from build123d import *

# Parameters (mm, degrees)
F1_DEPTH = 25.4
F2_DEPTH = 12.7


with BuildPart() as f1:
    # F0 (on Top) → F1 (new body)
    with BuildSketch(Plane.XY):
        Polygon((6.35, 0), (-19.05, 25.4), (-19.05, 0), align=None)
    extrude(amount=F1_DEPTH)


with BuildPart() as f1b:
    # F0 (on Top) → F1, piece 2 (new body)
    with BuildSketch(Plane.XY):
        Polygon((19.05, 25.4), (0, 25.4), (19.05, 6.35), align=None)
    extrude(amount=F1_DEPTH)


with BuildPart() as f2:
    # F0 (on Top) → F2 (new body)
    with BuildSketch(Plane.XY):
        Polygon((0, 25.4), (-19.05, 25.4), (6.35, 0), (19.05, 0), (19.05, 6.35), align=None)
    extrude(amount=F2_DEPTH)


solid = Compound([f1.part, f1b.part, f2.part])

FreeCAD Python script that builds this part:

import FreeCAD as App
import Part
import Sketcher

V = App.Vector
Q = App.Units.Quantity

doc = App.newDocument("Part")
body = doc.addObject("PartDesign::Body", "Body")

# Sketch on XY plane
sketch1 = body.newObject("Sketcher::SketchObject", "Sketch")
sketch1.AttachmentSupport = (doc.getObject("XY_Plane"), [""])
sketch1.MapMode = "FlatFace"
sketch1.addGeometry([
    Part.LineSegment(V(6, 0, 0), V(-19, 25, 0)),
    Part.LineSegment(V(-19, 25, 0), V(-19, 0, 0)),
    Part.LineSegment(V(-19, 0, 0), V(6, 0, 0)),
], False)
sketch1.addConstraint([
    Sketcher.Constraint("Coincident", 0, 2, 1, 1),
    Sketcher.Constraint("Coincident", 1, 2, 2, 1),
    Sketcher.Constraint("Coincident", 2, 2, 0, 1),
    Sketcher.Constraint("Vertical", 1),
    Sketcher.Constraint("Horizontal", 2),
    Sketcher.Constraint("PointOnObject", 1, 2, -1),
    Sketcher.Constraint("Equal", 2, 1),
    Sketcher.Constraint("DistanceX", 2, 1, 2, 2, Q("1 in")),
    Sketcher.Constraint("DistanceX", 0, 2, -1, 1, Q("0.75 in")),
])
pad1 = body.newObject("PartDesign::Pad", "Pad")
pad1.Profile = sketch1
pad1.Length = Q("1 in")
body2 = doc.addObject("PartDesign::Body", "Body001")

# Sketch on XY plane
sketch2 = body2.newObject("Sketcher::SketchObject", "Sketch001")
sketch2.AttachmentSupport = (doc.getObject("XY_Plane001"), [""])
sketch2.MapMode = "FlatFace"
sketch2.addGeometry([
    Part.LineSegment(V(19, 25, 0), V(0, 25, 0)),
    Part.LineSegment(V(0, 25, 0), V(19, 6, 0)),
    Part.LineSegment(V(19, 6, 0), V(19, 25, 0)),
], False)
sketch2.addConstraint([
    Sketcher.Constraint("Coincident", 0, 2, 1, 1),
    Sketcher.Constraint("Coincident", 1, 2, 2, 1),
    Sketcher.Constraint("Coincident", 2, 2, 0, 1),
    Sketcher.Constraint("Horizontal", 0),
    Sketcher.Constraint("Vertical", 2),
    Sketcher.Constraint("PointOnObject", 0, 2, -2),
    Sketcher.Constraint("Equal", 0, 2),
    Sketcher.Constraint("DistanceY", -1, 1, 0, 2, Q("1 in")),
    Sketcher.Constraint("DistanceX", 0, 2, 0, 1, Q("0.75 in")),
])
pad2 = body2.newObject("PartDesign::Pad", "Pad001")
pad2.Profile = sketch2
pad2.Length = Q("1 in")
body3 = doc.addObject("PartDesign::Body", "Body002")

# Sketch on XY plane
sketch3 = body3.newObject("Sketcher::SketchObject", "Sketch002")
sketch3.AttachmentSupport = (doc.getObject("XY_Plane002"), [""])
sketch3.MapMode = "FlatFace"
sketch3.addGeometry([
    Part.LineSegment(V(0, 25, 0), V(-19, 25, 0)),  # 0
    Part.LineSegment(V(-19, 25, 0), V(6, 0, 0)),  # 1
    Part.LineSegment(V(6, 0, 0), V(19, 0, 0)),  # 2
    Part.LineSegment(V(19, 0, 0), V(19, 6, 0)),  # 3
    Part.LineSegment(V(19, 6, 0), V(0, 25, 0)),  # 4
], False)
sketch3.addConstraint([
    Sketcher.Constraint("Coincident", 0, 2, 1, 1),
    Sketcher.Constraint("Coincident", 1, 2, 2, 1),
    Sketcher.Constraint("Coincident", 2, 2, 3, 1),
    Sketcher.Constraint("Coincident", 3, 2, 4, 1),
    Sketcher.Constraint("Coincident", 4, 2, 0, 1),
    Sketcher.Constraint("Horizontal", 0),
    Sketcher.Constraint("Horizontal", 2),
    Sketcher.Constraint("Vertical", 3),
    Sketcher.Constraint("PointOnObject", 1, 2, -1),
    Sketcher.Constraint("PointOnObject", 4, 2, -2),
    Sketcher.Constraint("Parallel", 1, 4),
    Sketcher.Constraint("DistanceX", 2, 1, 2, 2, Q("0.5 in")),
    Sketcher.Constraint("DistanceY", -1, 1, 0, 2, Q("1 in")),
    Sketcher.Constraint("Angle", 1, Q("-45 deg")),
    Sketcher.Constraint("DistanceX", 0, 2, 0, 1, Q("0.75 in")),
])
pad3 = body3.newObject("PartDesign::Pad", "Pad002")
pad3.Profile = sketch3
pad3.Length = Q("0.5 in")

doc.recompute()
